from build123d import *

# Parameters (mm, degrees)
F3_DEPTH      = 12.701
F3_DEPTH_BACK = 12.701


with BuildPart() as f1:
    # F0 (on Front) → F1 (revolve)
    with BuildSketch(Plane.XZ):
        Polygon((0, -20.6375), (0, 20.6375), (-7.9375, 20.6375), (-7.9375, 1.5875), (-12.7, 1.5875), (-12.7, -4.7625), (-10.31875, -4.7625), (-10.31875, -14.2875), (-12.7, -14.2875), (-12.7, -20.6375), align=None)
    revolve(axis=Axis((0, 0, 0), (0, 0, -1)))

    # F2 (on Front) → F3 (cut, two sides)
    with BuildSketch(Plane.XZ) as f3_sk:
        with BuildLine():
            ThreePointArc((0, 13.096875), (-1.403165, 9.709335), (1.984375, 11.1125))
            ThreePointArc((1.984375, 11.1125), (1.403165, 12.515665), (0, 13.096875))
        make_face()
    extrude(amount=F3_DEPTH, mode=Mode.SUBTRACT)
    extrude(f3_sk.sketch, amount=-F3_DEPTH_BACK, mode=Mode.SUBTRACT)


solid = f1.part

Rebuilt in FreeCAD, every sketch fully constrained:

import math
import FreeCAD as App
import Part
import Sketcher

V = App.Vector
Q = App.Units.Quantity

doc = App.newDocument("Part")
params = doc.addObject("Spreadsheet::Sheet", "Params")
for row, (alias, value) in enumerate([
    ("sketch1_width", "0.5 in"),
    ("sketch1_height", "0.75 in"),
    ("sketch1_width2", "0.3125 in"),
    ("sketch1_width3", "0.09375 in"),
    ("sketch1_height2", "1.625 in"),
    ("revolution_angle", "360 deg"),
    ("sketch2_radius", "0.078125 in"),
], start=1):
    params.set(f"A{row}", alias)
    params.set(f"B{row}", "=" + value)
    params.setAlias(f"B{row}", alias)

body = doc.addObject("PartDesign::Body", "Body")

sketch1 = body.newObject("Sketcher::SketchObject", "Sketch")
sketch1.AttachmentSupport = (doc.getObject("XZ_Plane"), [""])
sketch1.MapMode = "FlatFace"
sketch1.addGeometry([
    Part.LineSegment(V(0, -20.6, 0), V(0, 20.6, 0)),
    Part.LineSegment(V(0, 20.6, 0), V(-7.9, 20.6, 0)),
    Part.LineSegment(V(-7.9, 20.6, 0), V(-7.9, 1.6, 0)),
    Part.LineSegment(V(-7.9, 1.6, 0), V(-12.7, 1.6, 0)),
    Part.LineSegment(V(-12.7, 1.6, 0), V(-12.7, -4.8, 0)),
    Part.LineSegment(V(-12.7, -4.8, 0), V(-10.3, -4.8, 0)),
    Part.LineSegment(V(-10.3, -4.8, 0), V(-10.3, -14.3, 0)),
    Part.LineSegment(V(-10.3, -14.3, 0), V(-12.7, -14.3, 0)),
    Part.LineSegment(V(-12.7, -14.3, 0), V(-12.7, -20.6, 0)),
    Part.LineSegment(V(-12.7, -20.6, 0), V(0, -20.6, 0)),
], False)
sketch1.addConstraint([
    Sketcher.Constraint("Coincident", 0, 2, 1, 1),
    Sketcher.Constraint("Coincident", 1, 2, 2, 1),
    Sketcher.Constraint("Coincident", 2, 2, 3, 1),
    Sketcher.Constraint("Coincident", 3, 2, 4, 1),
    Sketcher.Constraint("Coincident", 4, 2, 5, 1),
    Sketcher.Constraint("Coincident", 5, 2, 6, 1),
    Sketcher.Constraint("Coincident", 6, 2, 7, 1),
    Sketcher.Constraint("Coincident", 7, 2, 8, 1),
    Sketcher.Constraint("Coincident", 8, 2, 9, 1),
    Sketcher.Constraint("Coincident", 9, 2, 0, 1),
    Sketcher.Constraint("Vertical", 0),
    Sketcher.Constraint("Horizontal", 1),
    Sketcher.Constraint("Vertical", 2),
    Sketcher.Constraint("Horizontal", 3),
    Sketcher.Constraint("Vertical", 4),
    Sketcher.Constraint("Horizontal", 5),
    Sketcher.Constraint("Vertical", 6),
    Sketcher.Constraint("Horizontal", 7),
    Sketcher.Constraint("Vertical", 8),
    Sketcher.Constraint("Horizontal", 9),
    Sketcher.Constraint("Symmetric", 0, 2, 9, 2, -1, 1),
    Sketcher.Constraint("Vertical", 4, 2, 7, 2),
    Sketcher.Constraint("Equal", 4, 8),
    Sketcher.Constraint("DistanceX", 9, 1, 9, 2, Q("0.5 in")),
    Sketcher.Constraint("DistanceY", 4, 2, 1, 2, Q("1 in")),
    Sketcher.Constraint("DistanceY", 2, 2, 2, 1, Q("0.75 in")),
    Sketcher.Constraint("DistanceX", 1, 2, 1, 1, Q("0.3125 in")),
    Sketcher.Constraint("DistanceX", 5, 1, 5, 2, Q("0.09375 in")),
    Sketcher.Constraint("DistanceY", 0, 1, 0, 2, Q("1.625 in")),
])
sketch1.setExpression("Constraints[23]", "Params.sketch1_width")
sketch1.setExpression("Constraints[25]", "Params.sketch1_height")
sketch1.setExpression("Constraints[26]", "Params.sketch1_width2")
sketch1.setExpression("Constraints[27]", "Params.sketch1_width3")
sketch1.setExpression("Constraints[28]", "Params.sketch1_height2")
revolution = body.newObject("PartDesign::Revolution", "Revolution")
revolution.Profile = sketch1
revolution.ReferenceAxis = (sketch1, ["V_Axis"])
revolution.setExpression("Angle", "Params.revolution_angle")

sketch2 = body.newObject("Sketcher::SketchObject", "Sketch001")
sketch2.AttachmentSupport = (doc.getObject("XZ_Plane"), [""])
sketch2.MapMode = "FlatFace"
sketch2.addGeometry([
    Part.ArcOfCircle(Part.Circle(V(0, 11.1, 0), V(0, 0, 1), 2), math.radians(90), math.radians(360)),
    Part.ArcOfCircle(Part.Circle(V(0, 11.1, 0), V(0, 0, 1), 2), math.radians(0), math.radians(90)),
], False)
sketch2.addConstraint([
    Sketcher.Constraint("Tangent", 0, 1, 1, 2),
    Sketcher.Constraint("Coincident", 1, 1, 0, 2),
    Sketcher.Constraint("PointOnObject", 0, 3, -2),
    Sketcher.Constraint("PointOnObject", 0, 1, -2),
    Sketcher.Constraint("Horizontal", 0, 3, 1, 1),
    Sketcher.Constraint("Radius", 0, Q("0.078125 in")),
    Sketcher.Constraint("DistanceY", -1, 1, 0, 3, Q("0.4375 in")),
])
sketch2.setExpression("Constraints[5]", "Params.sketch2_radius")
pocket1 = body.newObject("PartDesign::Pocket", "Pocket")
pocket1.Profile = sketch2
pocket1.Type = "ThroughAll"
pocket1.Midplane = True

doc.recompute()
